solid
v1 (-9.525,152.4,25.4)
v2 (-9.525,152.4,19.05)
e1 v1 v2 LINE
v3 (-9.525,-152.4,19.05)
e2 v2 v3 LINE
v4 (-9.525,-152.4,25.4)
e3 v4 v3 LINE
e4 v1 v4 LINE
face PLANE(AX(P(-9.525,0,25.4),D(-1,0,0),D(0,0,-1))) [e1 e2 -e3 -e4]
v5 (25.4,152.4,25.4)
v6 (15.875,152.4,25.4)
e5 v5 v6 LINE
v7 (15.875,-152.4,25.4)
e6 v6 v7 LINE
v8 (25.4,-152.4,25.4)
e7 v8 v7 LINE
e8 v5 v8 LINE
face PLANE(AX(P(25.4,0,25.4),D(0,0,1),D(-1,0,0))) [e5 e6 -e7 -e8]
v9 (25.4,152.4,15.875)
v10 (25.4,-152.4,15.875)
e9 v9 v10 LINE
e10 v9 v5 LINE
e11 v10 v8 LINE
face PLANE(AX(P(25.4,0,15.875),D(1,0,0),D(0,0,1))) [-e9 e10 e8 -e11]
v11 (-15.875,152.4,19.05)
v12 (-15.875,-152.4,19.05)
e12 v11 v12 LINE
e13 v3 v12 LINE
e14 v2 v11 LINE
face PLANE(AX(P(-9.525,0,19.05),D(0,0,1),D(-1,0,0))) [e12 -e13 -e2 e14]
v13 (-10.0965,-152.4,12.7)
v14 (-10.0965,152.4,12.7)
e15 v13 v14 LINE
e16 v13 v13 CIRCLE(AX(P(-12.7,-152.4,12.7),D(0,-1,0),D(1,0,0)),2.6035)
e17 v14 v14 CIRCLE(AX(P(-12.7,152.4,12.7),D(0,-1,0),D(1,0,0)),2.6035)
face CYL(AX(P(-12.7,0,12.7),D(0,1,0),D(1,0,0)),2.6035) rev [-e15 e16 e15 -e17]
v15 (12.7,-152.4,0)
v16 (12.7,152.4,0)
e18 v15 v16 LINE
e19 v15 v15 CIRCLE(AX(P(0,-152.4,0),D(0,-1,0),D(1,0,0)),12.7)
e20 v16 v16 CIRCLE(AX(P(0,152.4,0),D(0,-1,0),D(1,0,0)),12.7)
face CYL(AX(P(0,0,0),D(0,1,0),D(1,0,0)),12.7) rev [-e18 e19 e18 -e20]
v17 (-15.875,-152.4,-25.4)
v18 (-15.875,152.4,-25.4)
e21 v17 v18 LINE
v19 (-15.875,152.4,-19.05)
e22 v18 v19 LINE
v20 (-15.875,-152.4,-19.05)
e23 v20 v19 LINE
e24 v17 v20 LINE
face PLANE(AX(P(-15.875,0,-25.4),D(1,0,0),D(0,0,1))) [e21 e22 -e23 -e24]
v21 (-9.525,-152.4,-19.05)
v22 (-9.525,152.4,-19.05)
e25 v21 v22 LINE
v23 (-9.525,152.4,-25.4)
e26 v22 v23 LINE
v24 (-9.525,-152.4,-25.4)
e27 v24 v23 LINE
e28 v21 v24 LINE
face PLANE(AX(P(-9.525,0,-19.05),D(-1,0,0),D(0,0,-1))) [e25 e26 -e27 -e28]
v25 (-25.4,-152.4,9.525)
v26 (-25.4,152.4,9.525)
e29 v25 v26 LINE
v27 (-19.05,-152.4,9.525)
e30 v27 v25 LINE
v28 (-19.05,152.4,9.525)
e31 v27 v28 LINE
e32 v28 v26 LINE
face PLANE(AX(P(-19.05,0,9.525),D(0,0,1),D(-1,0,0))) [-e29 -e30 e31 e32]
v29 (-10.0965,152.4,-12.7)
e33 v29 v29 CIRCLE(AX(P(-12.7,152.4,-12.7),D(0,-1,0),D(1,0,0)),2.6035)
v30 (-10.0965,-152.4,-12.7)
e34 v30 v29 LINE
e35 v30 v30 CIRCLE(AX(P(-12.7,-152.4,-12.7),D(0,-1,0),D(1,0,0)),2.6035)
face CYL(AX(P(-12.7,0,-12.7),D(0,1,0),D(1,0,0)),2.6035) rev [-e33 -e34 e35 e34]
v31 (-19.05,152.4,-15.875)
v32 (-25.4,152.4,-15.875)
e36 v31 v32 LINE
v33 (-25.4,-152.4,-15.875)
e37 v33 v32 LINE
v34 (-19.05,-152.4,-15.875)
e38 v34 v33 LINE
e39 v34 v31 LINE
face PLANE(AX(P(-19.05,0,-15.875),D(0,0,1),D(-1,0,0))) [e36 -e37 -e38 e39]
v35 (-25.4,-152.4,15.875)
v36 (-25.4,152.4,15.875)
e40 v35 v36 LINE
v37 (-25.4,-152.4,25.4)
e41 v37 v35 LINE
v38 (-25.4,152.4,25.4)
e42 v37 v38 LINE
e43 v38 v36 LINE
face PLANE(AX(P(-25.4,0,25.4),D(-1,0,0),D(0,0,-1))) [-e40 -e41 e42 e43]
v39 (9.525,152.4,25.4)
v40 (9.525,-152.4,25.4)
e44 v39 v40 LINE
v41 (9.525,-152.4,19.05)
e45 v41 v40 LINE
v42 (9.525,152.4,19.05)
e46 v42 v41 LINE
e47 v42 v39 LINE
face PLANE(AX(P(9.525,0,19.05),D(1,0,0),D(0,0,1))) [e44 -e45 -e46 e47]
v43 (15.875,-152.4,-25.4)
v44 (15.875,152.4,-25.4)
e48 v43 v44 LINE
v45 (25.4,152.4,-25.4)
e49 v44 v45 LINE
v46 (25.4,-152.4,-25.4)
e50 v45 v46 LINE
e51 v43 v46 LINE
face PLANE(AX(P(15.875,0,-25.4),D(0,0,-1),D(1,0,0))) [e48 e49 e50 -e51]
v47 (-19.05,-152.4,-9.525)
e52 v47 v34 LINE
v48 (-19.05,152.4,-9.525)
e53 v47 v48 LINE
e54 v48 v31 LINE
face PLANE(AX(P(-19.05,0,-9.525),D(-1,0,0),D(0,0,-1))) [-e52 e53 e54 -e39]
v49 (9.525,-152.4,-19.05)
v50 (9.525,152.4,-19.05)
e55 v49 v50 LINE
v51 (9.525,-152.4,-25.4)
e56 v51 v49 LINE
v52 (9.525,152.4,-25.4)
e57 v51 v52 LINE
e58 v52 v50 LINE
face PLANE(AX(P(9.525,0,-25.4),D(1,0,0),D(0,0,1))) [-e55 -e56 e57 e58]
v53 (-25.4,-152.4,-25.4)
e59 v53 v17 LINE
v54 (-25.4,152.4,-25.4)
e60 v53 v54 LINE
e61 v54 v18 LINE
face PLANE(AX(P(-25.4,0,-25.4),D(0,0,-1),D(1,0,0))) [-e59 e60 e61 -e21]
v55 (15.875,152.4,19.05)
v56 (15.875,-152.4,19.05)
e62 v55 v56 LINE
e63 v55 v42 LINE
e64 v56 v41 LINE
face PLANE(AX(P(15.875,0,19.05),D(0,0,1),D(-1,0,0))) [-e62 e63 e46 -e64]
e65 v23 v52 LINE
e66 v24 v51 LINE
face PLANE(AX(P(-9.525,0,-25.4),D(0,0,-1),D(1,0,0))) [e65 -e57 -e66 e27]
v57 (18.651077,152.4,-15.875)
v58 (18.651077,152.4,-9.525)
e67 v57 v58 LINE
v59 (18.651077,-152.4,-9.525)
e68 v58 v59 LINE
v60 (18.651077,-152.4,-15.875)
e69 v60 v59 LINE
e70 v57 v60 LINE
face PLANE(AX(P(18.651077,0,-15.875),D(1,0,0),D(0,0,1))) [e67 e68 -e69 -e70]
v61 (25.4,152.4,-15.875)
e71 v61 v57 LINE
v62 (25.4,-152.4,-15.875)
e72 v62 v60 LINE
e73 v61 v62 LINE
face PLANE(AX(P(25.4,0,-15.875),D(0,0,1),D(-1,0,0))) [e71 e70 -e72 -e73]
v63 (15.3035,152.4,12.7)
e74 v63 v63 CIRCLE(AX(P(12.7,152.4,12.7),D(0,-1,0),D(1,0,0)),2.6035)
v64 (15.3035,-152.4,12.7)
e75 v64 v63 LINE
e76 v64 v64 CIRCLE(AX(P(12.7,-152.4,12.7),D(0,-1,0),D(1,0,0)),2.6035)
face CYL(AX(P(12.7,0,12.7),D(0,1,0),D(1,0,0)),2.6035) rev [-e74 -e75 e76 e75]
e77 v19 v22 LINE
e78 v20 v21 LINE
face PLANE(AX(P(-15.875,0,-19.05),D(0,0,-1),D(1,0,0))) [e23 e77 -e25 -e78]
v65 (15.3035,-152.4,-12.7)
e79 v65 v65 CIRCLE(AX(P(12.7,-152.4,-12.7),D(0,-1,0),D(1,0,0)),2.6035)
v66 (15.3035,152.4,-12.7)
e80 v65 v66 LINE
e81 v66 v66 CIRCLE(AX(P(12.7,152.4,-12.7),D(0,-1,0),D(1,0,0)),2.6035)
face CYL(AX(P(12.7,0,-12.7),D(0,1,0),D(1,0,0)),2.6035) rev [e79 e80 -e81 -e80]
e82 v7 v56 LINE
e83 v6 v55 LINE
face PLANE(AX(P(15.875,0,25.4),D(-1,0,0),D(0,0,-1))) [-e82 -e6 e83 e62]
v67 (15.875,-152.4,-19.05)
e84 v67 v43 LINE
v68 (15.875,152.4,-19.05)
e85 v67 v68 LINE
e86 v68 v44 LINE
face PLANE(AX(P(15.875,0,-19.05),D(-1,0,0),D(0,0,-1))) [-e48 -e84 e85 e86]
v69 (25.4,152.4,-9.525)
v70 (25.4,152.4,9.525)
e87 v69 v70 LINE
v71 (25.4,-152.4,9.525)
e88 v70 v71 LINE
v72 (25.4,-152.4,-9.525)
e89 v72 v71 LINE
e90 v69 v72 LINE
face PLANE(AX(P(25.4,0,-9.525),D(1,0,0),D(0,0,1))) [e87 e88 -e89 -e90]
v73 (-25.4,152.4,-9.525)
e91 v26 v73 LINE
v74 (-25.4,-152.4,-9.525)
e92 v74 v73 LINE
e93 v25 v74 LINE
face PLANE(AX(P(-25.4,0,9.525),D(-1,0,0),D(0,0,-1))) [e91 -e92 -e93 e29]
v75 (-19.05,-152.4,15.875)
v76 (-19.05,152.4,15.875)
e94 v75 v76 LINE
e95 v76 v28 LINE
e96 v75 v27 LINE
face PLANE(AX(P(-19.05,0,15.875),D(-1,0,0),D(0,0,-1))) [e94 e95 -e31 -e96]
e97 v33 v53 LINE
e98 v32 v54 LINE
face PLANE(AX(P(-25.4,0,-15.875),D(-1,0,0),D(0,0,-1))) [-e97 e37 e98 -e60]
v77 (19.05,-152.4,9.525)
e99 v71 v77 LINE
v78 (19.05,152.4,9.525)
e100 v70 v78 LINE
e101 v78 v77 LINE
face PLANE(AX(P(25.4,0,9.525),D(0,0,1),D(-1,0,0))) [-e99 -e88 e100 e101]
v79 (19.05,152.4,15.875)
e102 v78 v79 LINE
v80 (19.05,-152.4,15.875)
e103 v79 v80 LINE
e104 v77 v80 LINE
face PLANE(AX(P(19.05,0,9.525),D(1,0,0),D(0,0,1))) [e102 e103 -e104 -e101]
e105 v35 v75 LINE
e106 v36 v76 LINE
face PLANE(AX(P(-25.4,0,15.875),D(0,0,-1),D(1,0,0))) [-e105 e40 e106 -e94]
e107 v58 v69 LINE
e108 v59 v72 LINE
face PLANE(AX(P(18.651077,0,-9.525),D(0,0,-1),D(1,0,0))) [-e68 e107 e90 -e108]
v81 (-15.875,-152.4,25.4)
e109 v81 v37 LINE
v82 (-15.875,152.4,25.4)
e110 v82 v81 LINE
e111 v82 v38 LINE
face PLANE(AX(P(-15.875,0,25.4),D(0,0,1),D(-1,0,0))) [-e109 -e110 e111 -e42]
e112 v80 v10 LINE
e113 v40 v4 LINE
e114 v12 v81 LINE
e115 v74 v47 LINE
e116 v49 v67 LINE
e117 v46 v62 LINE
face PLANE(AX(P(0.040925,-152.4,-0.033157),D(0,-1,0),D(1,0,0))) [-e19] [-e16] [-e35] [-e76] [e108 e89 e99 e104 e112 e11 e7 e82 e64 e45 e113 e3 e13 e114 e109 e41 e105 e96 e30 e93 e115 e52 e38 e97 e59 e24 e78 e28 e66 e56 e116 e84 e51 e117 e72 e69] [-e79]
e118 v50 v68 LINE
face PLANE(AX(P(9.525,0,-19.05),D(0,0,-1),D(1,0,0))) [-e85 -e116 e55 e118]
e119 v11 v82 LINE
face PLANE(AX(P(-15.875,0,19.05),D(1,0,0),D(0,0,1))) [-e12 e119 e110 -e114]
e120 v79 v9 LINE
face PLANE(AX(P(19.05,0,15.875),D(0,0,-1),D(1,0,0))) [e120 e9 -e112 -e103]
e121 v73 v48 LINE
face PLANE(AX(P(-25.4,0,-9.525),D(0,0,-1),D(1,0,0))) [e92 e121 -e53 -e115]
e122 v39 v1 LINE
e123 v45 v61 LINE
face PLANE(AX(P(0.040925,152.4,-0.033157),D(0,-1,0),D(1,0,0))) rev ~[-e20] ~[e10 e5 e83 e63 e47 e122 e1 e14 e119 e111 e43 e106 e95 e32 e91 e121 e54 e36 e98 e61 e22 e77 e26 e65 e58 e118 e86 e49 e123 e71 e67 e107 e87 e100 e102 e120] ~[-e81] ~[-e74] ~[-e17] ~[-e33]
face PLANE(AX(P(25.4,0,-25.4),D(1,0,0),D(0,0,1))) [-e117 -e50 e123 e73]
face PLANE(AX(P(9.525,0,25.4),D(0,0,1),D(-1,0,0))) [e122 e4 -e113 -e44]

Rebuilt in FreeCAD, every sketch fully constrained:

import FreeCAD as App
import Part
import Sketcher
Q = App.Units.Quantity

doc = App.newDocument("Part")
body = doc.addObject("PartDesign::Body", "Body")

# Sketch on XZ plane
sketch1 = body.newObject("Sketcher::SketchObject", "Sketch")
sketch1.AttachmentSupport = (doc.getObject("XZ_Plane"), [""])
sketch1.MapMode = "FlatFace"
sketch1.addGeometry([
    Part.LineSegment(App.Vector(15.9, -25.4, 0), App.Vector(25.4, -25.4, 0)),  # 0
    Part.LineSegment(App.Vector(25.4, -25.4, 0), App.Vector(25.4, -15.9, 0)),  # 1
    Part.LineSegment(App.Vector(25.4, -15.9, 0), App.Vector(18.7, -15.9, 0)),  # 2
    Part.LineSegment(App.Vector(18.7, -15.9, 0), App.Vector(18.7, -9.5, 0)),  # 3
    Part.LineSegment(App.Vector(18.7, -9.5, 0), App.Vector(25.4, -9.5, 0)),  # 4
    Part.LineSegment(App.Vector(25.4, -9.5, 0), App.Vector(25.4, 9.5, 0)),  # 5
    Part.LineSegment(App.Vector(25.4, 9.5, 0), App.Vector(19.1, 9.5, 0)),  # 6
    Part.LineSegment(App.Vector(19.1, 9.5, 0), App.Vector(19.1, 15.9, 0)),  # 7
    Part.LineSegment(App.Vector(19.1, 15.9, 0), App.Vector(25.4, 15.9, 0)),  # 8
    Part.LineSegment(App.Vector(25.4, 15.9, 0), App.Vector(25.4, 25.4, 0)),  # 9
    Part.LineSegment(App.Vector(25.4, 25.4, 0), App.Vector(15.9, 25.4, 0)),  # 10
    Part.LineSegment(App.Vector(15.9, 25.4, 0), App.Vector(15.9, 19.1, 0)),  # 11
    Part.LineSegment(App.Vector(15.9, 19.1, 0), App.Vector(9.5, 19.1, 0)),  # 12
    Part.LineSegment(App.Vector(9.5, 19.1, 0), App.Vector(9.5, 25.4, 0)),  # 13
    Part.LineSegment(App.Vector(9.5, 25.4, 0), App.Vector(-9.5, 25.4, 0)),  # 14
    Part.LineSegment(App.Vector(-9.5, 25.4, 0), App.Vector(-9.5, 19.1, 0)),  # 15
    Part.LineSegment(App.Vector(-9.5, 19.1, 0), App.Vector(-15.9, 19.1, 0)),  # 16
    Part.LineSegment(App.Vector(-15.9, 19.1, 0), App.Vector(-15.9, 25.4, 0)),  # 17
    Part.LineSegment(App.Vector(-15.9, 25.4, 0), App.Vector(-25.4, 25.4, 0)),  # 18
    Part.LineSegment(App.Vector(-25.4, 25.4, 0), App.Vector(-25.4, 15.9, 0)),  # 19
    Part.LineSegment(App.Vector(-25.4, 15.9, 0), App.Vector(-19.1, 15.9, 0)),  # 20
    Part.LineSegment(App.Vector(-19.1, 15.9, 0), App.Vector(-19.1, 9.5, 0)),  # 21
    Part.LineSegment(App.Vector(-19.1, 9.5, 0), App.Vector(-25.4, 9.5, 0)),  # 22
    Part.LineSegment(App.Vector(-25.4, 9.5, 0), App.Vector(-25.4, -9.5, 0)),  # 23
    Part.LineSegment(App.Vector(-25.4, -9.5, 0), App.Vector(-19.1, -9.5, 0)),  # 24
    Part.LineSegment(App.Vector(-19.1, -9.5, 0), App.Vector(-19.1, -15.9, 0)),  # 25
    Part.LineSegment(App.Vector(-19.1, -15.9, 0), App.Vector(-25.4, -15.9, 0)),  # 26
    Part.LineSegment(App.Vector(-25.4, -15.9, 0), App.Vector(-25.4, -25.4, 0)),  # 27
    Part.LineSegment(App.Vector(-25.4, -25.4, 0), App.Vector(-15.9, -25.4, 0)),  # 28
    Part.LineSegment(App.Vector(-15.9, -25.4, 0), App.Vector(-15.9, -19.1, 0)),  # 29
    Part.LineSegment(App.Vector(-15.9, -19.1, 0), App.Vector(-9.5, -19.1, 0)),  # 30
    Part.LineSegment(App.Vector(-9.5, -19.1, 0), App.Vector(-9.5, -25.4, 0)),  # 31
    Part.LineSegment(App.Vector(-9.5, -25.4, 0), App.Vector(9.5, -25.4, 0)),  # 32
    Part.LineSegment(App.Vector(9.5, -25.4, 0), App.Vector(9.5, -19.1, 0)),  # 33
    Part.LineSegment(App.Vector(9.5, -19.1, 0), App.Vector(15.9, -19.1, 0)),  # 34
    Part.LineSegment(App.Vector(15.9, -19.1, 0), App.Vector(15.9, -25.4, 0)),  # 35
    Part.Circle(App.Vector(-12.7, -12.7, 0), App.Vector(0, 0, 1), 2.6),  # 36
    Part.Circle(App.Vector(12.7, -12.7, 0), App.Vector(0, 0, 1), 2.6),  # 37
    Part.Circle(App.Vector(-12.7, 12.7, 0), App.Vector(0, 0, 1), 2.6),  # 38
    Part.Circle(App.Vector(0, 0, 0), App.Vector(0, 0, 1), 12.7),  # 39
    Part.Circle(App.Vector(12.7, 12.7, 0), App.Vector(0, 0, 1), 2.6),  # 40
], False)
sketch1.addConstraint([
    Sketcher.Constraint("Coincident", 0, 2, 1, 1),
    Sketcher.Constraint("Coincident", 1, 2, 2, 1),
    Sketcher.Constraint("Coincident", 2, 2, 3, 1),
    Sketcher.Constraint("Coincident", 3, 2, 4, 1),
    Sketcher.Constraint("Coincident", 4, 2, 5, 1),
    Sketcher.Constraint("Coincident", 5, 2, 6, 1),
    Sketcher.Constraint("Coincident", 6, 2, 7, 1),
    Sketcher.Constraint("Coincident", 7, 2, 8, 1),
    Sketcher.Constraint("Coincident", 8, 2, 9, 1),
    Sketcher.Constraint("Coincident", 9, 2, 10, 1),
    Sketcher.Constraint("Coincident", 10, 2, 11, 1),
    Sketcher.Constraint("Coincident", 11, 2, 12, 1),
    Sketcher.Constraint("Coincident", 12, 2, 13, 1),
    Sketcher.Constraint("Coincident", 13, 2, 14, 1),
    Sketcher.Constraint("Coincident", 14, 2, 15, 1),
    Sketcher.Constraint("Coincident", 15, 2, 16, 1),
    Sketcher.Constraint("Coincident", 16, 2, 17, 1),
    Sketcher.Constraint("Coincident", 17, 2, 18, 1),
    Sketcher.Constraint("Coincident", 18, 2, 19, 1),
    Sketcher.Constraint("Coincident", 19, 2, 20, 1),
    Sketcher.Constraint("Coincident", 20, 2, 21, 1),
    Sketcher.Constraint("Coincident", 21, 2, 22, 1),
    Sketcher.Constraint("Coincident", 22, 2, 23, 1),
    Sketcher.Constraint("Coincident", 23, 2, 24, 1),
    Sketcher.Constraint("Coincident", 24, 2, 25, 1),
    Sketcher.Constraint("Coincident", 25, 2, 26, 1),
    Sketcher.Constraint("Coincident", 26, 2, 27, 1),
    Sketcher.Constraint("Coincident", 27, 2, 28, 1),
    Sketcher.Constraint("Coincident", 28, 2, 29, 1),
    Sketcher.Constraint("Coincident", 29, 2, 30, 1),
    Sketcher.Constraint("Coincident", 30, 2, 31, 1),
    Sketcher.Constraint("Coincident", 31, 2, 32, 1),
    Sketcher.Constraint("Coincident", 32, 2, 33, 1),
    Sketcher.Constraint("Coincident", 33, 2, 34, 1),
    Sketcher.Constraint("Coincident", 34, 2, 35, 1),
    Sketcher.Constraint("Coincident", 35, 2, 0, 1),
    Sketcher.Constraint("Horizontal", 0),
    Sketcher.Constraint("Vertical", 1),
    Sketcher.Constraint("Horizontal", 2),
    Sketcher.Constraint("Vertical", 3),
    Sketcher.Constraint("Horizontal", 4),
    Sketcher.Constraint("Vertical", 5),
    Sketcher.Constraint("Horizontal", 6),
    Sketcher.Constraint("Vertical", 7),
    Sketcher.Constraint("Horizontal", 8),
    Sketcher.Constraint("Vertical", 9),
    Sketcher.Constraint("Horizontal", 10),
    Sketcher.Constraint("Vertical", 11),
    Sketcher.Constraint("Horizontal", 12),
    Sketcher.Constraint("Vertical", 13),
    Sketcher.Constraint("Horizontal", 14),
    Sketcher.Constraint("Vertical", 15),
    Sketcher.Constraint("Horizontal", 16),
    Sketcher.Constraint("Vertical", 17),
    Sketcher.Constraint("Horizontal", 18),
    Sketcher.Constraint("Vertical", 19),
    Sketcher.Constraint("Horizontal", 20),
    Sketcher.Constraint("Vertical", 21),
    Sketcher.Constraint("Horizontal", 22),
    Sketcher.Constraint("Vertical", 23),
    Sketcher.Constraint("Horizontal", 24),
    Sketcher.Constraint("Vertical", 25),
    Sketcher.Constraint("Horizontal", 26),
    Sketcher.Constraint("Vertical", 27),
    Sketcher.Constraint("Horizontal", 28),
    Sketcher.Constraint("Vertical", 29),
    Sketcher.Constraint("Horizontal", 30),
    Sketcher.Constraint("Vertical", 31),
    Sketcher.Constraint("Horizontal", 32),
    Sketcher.Constraint("Vertical", 33),
    Sketcher.Constraint("Horizontal", 34),
    Sketcher.Constraint("Vertical", 35),
    Sketcher.Constraint("Coincident", 39, 3, -1, 1),
    Sketcher.Constraint("Equal", 36, 37),
    Sketcher.Constraint("Equal", 37, 38),
    Sketcher.Constraint("Equal", 38, 40),
    Sketcher.Constraint("Symmetric", 37, 3, 38, 3, -1, 1),
    Sketcher.Constraint("Symmetric", 36, 3, 40, 3, -1, 1),
    Sketcher.Constraint("Symmetric", 0, 2, 18, 2, -1, 1),
    Sketcher.Constraint("Symmetric", 4, 2, 22, 2, -1, 1),
    Sketcher.Constraint("Symmetric", 6, 2, 24, 2, -1, 1),
    Sketcher.Constraint("Symmetric", 8, 2, 26, 2, -1, 1),
    Sketcher.Constraint("Symmetric", 10, 2, 28, 2, -1, 1),
    Sketcher.Constraint("Symmetric", 12, 2, 30, 2, -1, 1),
    Sketcher.Constraint("Symmetric", 14, 2, 32, 2, -1, 1),
    Sketcher.Constraint("Symmetric", 16, 2, 34, 2, -1, 1),
    Sketcher.Constraint("Symmetric", 36, 3, 37, 3, -2),
    Sketcher.Constraint("Symmetric", 12, 2, 15, 2, -2),
    Sketcher.Constraint("Symmetric", 10, 2, 17, 2, -2),
    Sketcher.Constraint("Symmetric", 8, 2, 19, 2, -2),
    Sketcher.Constraint("Symmetric", 6, 2, 21, 2, -2),
    Sketcher.Constraint("Horizontal", 10, 2, 13, 2),
    Sketcher.Constraint("Horizontal", 2, 2, 25, 2),
    Sketcher.Constraint("Vertical", 1, 2, 4, 2),
    Sketcher.Constraint("Equal", 8, 12),
    Sketcher.Constraint("Equal", 28, 1),
    Sketcher.Constraint("Equal", 34, 3),
    Sketcher.Constraint("Equal", 32, 5),
    Sketcher.Constraint("Equal", 7, 11),
    Sketcher.Constraint("Diameter", 39, Q("1 in")),
    Sketcher.Constraint("Diameter", 36, Q("0.205 in")),
    Sketcher.Constraint("DistanceX", -1, 1, 0, 2, Q("1 in")),
    Sketcher.Constraint("DistanceX", 36, 3, 37, 3, Q("1 in")),
    Sketcher.Constraint("DistanceY", 36, 3, 38, 3, Q("1 in")),
    Sketcher.Constraint("DistanceY", 1, 2, 5, 2, Q("1 in")),
    Sketcher.Constraint("DistanceX", 6, 2, 6, 1, Q("0.25 in")),
    Sketcher.Constraint("DistanceX", 2, 2, 2, 1, Q("6.748923 mm")),
])
pad1 = body.newObject("PartDesign::Pad", "Pad")
pad1.Profile = sketch1
pad1.Length = Q("12 in")
pad1.Midplane = True

doc.recompute()
